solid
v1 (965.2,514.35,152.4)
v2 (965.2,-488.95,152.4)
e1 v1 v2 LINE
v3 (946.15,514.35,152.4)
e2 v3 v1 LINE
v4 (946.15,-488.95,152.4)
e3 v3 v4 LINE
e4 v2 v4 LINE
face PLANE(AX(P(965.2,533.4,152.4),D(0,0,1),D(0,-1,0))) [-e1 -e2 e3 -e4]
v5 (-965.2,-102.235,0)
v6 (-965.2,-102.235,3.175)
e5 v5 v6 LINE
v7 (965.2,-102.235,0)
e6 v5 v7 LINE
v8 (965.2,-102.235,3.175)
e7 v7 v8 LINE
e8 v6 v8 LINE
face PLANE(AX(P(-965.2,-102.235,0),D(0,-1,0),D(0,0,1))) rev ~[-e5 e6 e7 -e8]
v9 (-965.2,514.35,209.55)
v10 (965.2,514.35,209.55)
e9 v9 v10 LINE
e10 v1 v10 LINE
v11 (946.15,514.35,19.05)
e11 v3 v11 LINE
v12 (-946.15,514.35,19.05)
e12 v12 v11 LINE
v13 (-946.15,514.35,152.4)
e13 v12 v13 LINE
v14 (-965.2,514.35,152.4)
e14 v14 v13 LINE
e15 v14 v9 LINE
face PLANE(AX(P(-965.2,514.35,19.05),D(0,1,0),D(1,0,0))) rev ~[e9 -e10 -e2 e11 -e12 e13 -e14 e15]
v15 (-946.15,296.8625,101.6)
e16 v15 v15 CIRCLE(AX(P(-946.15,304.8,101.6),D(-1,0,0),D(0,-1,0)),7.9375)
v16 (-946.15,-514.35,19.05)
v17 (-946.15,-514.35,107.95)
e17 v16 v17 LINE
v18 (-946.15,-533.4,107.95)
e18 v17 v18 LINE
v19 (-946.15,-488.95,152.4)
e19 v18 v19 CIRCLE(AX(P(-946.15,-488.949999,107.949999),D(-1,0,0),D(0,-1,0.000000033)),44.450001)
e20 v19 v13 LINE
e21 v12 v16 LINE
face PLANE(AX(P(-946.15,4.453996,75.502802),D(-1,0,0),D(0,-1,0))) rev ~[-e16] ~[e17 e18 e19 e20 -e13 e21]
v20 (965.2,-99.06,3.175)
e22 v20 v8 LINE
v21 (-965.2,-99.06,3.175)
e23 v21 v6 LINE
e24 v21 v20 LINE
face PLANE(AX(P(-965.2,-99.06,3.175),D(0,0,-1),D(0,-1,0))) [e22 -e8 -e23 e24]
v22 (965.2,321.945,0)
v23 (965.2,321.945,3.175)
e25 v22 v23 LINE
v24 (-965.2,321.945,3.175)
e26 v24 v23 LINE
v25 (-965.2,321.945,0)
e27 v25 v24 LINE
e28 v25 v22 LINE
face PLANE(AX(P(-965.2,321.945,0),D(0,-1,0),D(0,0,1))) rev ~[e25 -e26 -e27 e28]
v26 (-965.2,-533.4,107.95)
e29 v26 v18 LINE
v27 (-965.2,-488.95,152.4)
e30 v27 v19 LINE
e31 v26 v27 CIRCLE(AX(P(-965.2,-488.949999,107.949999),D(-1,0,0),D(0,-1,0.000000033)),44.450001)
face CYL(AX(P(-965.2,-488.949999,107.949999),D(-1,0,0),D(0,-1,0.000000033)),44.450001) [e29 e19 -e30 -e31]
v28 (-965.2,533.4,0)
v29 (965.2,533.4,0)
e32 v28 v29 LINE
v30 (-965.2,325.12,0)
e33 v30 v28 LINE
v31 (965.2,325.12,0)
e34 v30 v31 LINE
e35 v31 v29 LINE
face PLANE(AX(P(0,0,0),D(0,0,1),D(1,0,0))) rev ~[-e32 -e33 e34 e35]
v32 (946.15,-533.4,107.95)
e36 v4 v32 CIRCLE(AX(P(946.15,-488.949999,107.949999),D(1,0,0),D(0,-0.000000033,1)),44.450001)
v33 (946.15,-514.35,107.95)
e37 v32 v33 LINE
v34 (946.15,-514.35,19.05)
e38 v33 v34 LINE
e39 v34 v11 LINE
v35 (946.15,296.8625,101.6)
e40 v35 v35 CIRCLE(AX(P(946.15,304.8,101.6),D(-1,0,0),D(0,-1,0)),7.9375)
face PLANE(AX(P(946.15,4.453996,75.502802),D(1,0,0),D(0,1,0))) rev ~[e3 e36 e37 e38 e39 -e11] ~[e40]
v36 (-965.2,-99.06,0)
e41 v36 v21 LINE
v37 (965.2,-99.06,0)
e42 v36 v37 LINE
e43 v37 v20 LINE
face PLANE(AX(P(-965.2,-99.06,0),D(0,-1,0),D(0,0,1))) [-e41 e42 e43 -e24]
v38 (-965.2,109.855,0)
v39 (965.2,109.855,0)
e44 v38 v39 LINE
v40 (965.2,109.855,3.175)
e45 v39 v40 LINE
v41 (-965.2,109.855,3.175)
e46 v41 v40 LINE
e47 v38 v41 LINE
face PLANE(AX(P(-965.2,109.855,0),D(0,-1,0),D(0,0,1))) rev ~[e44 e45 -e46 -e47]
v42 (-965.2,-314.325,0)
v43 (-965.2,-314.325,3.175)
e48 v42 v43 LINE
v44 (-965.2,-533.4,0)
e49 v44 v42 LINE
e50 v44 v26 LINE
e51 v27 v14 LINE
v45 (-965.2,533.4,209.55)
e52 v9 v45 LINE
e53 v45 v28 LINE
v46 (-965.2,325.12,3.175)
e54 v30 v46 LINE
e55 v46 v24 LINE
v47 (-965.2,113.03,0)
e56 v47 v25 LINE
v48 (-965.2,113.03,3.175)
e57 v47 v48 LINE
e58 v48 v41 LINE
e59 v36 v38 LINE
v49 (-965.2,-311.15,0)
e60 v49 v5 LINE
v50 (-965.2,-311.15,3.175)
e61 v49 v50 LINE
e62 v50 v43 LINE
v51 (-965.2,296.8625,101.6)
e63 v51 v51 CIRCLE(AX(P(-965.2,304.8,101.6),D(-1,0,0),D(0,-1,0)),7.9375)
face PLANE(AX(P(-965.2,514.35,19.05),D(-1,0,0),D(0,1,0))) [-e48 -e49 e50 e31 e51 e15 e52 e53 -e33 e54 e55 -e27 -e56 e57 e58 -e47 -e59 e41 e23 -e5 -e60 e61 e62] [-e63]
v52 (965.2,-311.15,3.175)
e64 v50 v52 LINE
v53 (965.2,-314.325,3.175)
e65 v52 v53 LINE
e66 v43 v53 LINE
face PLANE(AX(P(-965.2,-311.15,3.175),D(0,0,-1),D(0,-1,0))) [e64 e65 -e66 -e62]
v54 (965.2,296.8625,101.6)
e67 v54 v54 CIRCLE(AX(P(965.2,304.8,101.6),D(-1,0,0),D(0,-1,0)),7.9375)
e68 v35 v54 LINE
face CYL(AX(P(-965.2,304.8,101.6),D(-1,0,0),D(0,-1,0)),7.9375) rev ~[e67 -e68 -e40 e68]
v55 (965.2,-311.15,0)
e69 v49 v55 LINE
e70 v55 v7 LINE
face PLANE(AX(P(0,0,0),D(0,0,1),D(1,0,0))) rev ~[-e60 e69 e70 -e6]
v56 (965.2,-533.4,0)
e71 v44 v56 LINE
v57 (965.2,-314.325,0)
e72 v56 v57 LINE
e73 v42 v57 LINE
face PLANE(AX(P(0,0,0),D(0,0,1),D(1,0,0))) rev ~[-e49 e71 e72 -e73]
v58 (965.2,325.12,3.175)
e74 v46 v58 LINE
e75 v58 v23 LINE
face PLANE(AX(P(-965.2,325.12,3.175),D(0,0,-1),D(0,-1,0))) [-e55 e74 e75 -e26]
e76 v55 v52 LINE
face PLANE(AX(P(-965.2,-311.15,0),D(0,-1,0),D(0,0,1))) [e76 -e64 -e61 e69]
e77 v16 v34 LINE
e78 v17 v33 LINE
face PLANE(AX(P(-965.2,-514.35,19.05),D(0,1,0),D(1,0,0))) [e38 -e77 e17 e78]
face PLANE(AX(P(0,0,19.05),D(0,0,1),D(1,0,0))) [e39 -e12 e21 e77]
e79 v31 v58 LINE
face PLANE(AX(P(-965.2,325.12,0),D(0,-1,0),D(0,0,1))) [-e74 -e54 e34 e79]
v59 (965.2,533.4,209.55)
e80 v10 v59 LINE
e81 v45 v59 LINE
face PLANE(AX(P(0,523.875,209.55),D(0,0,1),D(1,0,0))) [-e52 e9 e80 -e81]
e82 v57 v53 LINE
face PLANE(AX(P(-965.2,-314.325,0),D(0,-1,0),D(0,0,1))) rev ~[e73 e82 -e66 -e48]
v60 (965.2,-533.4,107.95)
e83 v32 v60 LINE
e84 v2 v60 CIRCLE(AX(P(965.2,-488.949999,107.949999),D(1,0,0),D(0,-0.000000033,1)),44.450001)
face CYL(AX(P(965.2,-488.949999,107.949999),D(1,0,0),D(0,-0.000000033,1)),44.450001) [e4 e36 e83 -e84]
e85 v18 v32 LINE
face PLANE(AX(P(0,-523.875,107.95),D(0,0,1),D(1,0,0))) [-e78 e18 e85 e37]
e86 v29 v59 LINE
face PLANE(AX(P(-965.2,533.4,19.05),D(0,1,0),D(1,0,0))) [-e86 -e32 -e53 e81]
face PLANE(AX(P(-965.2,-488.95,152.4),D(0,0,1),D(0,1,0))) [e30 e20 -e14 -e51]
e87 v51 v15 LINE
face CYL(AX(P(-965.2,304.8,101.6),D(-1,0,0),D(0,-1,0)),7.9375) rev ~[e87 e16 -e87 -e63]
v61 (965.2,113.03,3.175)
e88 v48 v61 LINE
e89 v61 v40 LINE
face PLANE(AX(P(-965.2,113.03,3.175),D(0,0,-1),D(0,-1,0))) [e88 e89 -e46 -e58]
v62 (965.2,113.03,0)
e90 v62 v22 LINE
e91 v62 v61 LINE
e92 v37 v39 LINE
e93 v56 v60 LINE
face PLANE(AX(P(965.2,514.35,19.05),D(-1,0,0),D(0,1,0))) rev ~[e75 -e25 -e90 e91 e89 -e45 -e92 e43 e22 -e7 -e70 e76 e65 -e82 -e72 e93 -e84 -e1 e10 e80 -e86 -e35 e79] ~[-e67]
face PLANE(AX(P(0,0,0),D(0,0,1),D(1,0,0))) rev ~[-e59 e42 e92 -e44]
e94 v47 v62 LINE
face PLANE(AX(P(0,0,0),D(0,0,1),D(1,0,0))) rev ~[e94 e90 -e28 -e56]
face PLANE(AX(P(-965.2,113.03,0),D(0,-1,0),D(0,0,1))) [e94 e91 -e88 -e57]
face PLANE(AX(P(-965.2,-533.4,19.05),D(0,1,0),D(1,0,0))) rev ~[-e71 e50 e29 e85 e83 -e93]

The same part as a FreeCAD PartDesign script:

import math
import FreeCAD as App
import Part
import Sketcher
Q = App.Units.Quantity

doc = App.newDocument("Part")
params = doc.addObject("Spreadsheet::Sheet", "Params")
for row, (alias, value) in enumerate([
    ("sketch1_width", "76 in"),
    ("sketch1_height", "42 in"),
    ("pad1_length", "0.75 in"),
    ("sketch2_width", "76 in"),
    ("sketch2_height", "0.75 in"),
    ("pad2_length", "3.5 in"),
    ("sketch3_width", "76 in"),
    ("sketch3_height", "0.75 in"),
    ("pad3_length", "7.5 in"),
    ("sketch4_width", "42 in"),
    ("sketch4_height", "6 in"),
    ("sketch4_radius", "1.7500001 in"),
    ("pad4_length", "0.75 in"),
    ("sketch5_width", "42 in"),
    ("sketch5_height", "6 in"),
    ("sketch5_radius", "1.7500001 in"),
    ("pad5_length", "0.75 in"),
    ("sketch6_diameter", "0.625 in"),
    ("sketch7_width", "0.125 in"),
], start=1):
    params.set(f"A{row}", alias)
    params.set(f"B{row}", "=" + value)
    params.setAlias(f"B{row}", alias)

body = doc.addObject("PartDesign::Body", "Body")

# Sketch on XY plane
sketch1 = body.newObject("Sketcher::SketchObject", "Sketch")
sketch1.AttachmentSupport = (doc.getObject("XY_Plane"), [""])
sketch1.MapMode = "FlatFace"
sketch1.addGeometry([
    Part.LineSegment(App.Vector(-965, 533, 0), App.Vector(-965, -533, 0)),
    Part.LineSegment(App.Vector(-965, -533, 0), App.Vector(965, -533, 0)),
    Part.LineSegment(App.Vector(965, -533, 0), App.Vector(965, 533, 0)),
    Part.LineSegment(App.Vector(965, 533, 0), App.Vector(-965, 533, 0)),
], False)
sketch1.addConstraint([
    Sketcher.Constraint("Coincident", 0, 2, 1, 1),
    Sketcher.Constraint("Coincident", 1, 2, 2, 1),
    Sketcher.Constraint("Coincident", 2, 2, 3, 1),
    Sketcher.Constraint("Coincident", 3, 2, 0, 1),
    Sketcher.Constraint("Vertical", 0),
    Sketcher.Constraint("Horizontal", 1),
    Sketcher.Constraint("Vertical", 2),
    Sketcher.Constraint("Horizontal", 3),
    Sketcher.Constraint("Symmetric", 0, 2, 2, 2, -1, 1),
    Sketcher.Constraint("DistanceX", 1, 1, 1, 2, Q("76 in")),
    Sketcher.Constraint("DistanceY", 0, 2, 0, 1, Q("42 in")),
])
sketch1.setExpression("Constraints[9]", "Params.sketch1_width")
sketch1.setExpression("Constraints[10]", "Params.sketch1_height")
pad1 = body.newObject("PartDesign::Pad", "Pad")
pad1.Profile = sketch1
pad1.setExpression("Length", "Params.pad1_length")

# Sketch on XY plane
sketch2 = body.newObject("Sketcher::SketchObject", "Sketch001")
sketch2.AttachmentSupport = (doc.getObject("XY_Plane"), [""])
sketch2.MapMode = "FlatFace"
sketch2.AttachmentOffset = App.Placement(App.Vector(0, 0, 0.75 * 25.4), App.Rotation())
sketch2.addGeometry([
    Part.LineSegment(App.Vector(-965, -514, 0), App.Vector(-965, -533, 0)),
    Part.LineSegment(App.Vector(-965, -533, 0), App.Vector(965, -533, 0)),
    Part.LineSegment(App.Vector(965, -533, 0), App.Vector(965, -514, 0)),
    Part.LineSegment(App.Vector(965, -514, 0), App.Vector(-965, -514, 0)),
], False)
sketch2.addConstraint([
    Sketcher.Constraint("Coincident", 0, 2, 1, 1),
    Sketcher.Constraint("Coincident", 1, 2, 2, 1),
    Sketcher.Constraint("Coincident", 2, 2, 3, 1),
    Sketcher.Constraint("Coincident", 3, 2, 0, 1),
    Sketcher.Constraint("Vertical", 0),
    Sketcher.Constraint("Horizontal", 1),
    Sketcher.Constraint("Vertical", 2),
    Sketcher.Constraint("Horizontal", 3),
    Sketcher.Constraint("DistanceX", 1, 1, 1, 2, Q("76 in")),
    Sketcher.Constraint("DistanceX", 0, 2, -1, 1, Q("38 in")),
    Sketcher.Constraint("DistanceY", 0, 2, -1, 1, Q("21 in")),
    Sketcher.Constraint("DistanceY", 0, 2, 0, 1, Q("0.75 in")),
])
sketch2.setExpression("Constraints[8]", "Params.sketch2_width")
sketch2.setExpression("Constraints[11]", "Params.sketch2_height")
pad2 = body.newObject("PartDesign::Pad", "Pad001")
pad2.Profile = sketch2
pad2.setExpression("Length", "Params.pad2_length")

# Sketch on XY plane
sketch3 = body.newObject("Sketcher::SketchObject", "Sketch002")
sketch3.AttachmentSupport = (doc.getObject("XY_Plane"), [""])
sketch3.MapMode = "FlatFace"
sketch3.AttachmentOffset = App.Placement(App.Vector(0, 0, 0.75 * 25.4), App.Rotation())
sketch3.addGeometry([
    Part.LineSegment(App.Vector(-965, 533, 0), App.Vector(-965, 514, 0)),
    Part.LineSegment(App.Vector(-965, 514, 0), App.Vector(965, 514, 0)),
    Part.LineSegment(App.Vector(965, 514, 0), App.Vector(965, 533, 0)),
    Part.LineSegment(App.Vector(965, 533, 0), App.Vector(-965, 533, 0)),
], False)
sketch3.addConstraint([
    Sketcher.Constraint("Coincident", 0, 2, 1, 1),
    Sketcher.Constraint("Coincident", 1, 2, 2, 1),
    Sketcher.Constraint("Coincident", 2, 2, 3, 1),
    Sketcher.Constraint("Coincident", 3, 2, 0, 1),
    Sketcher.Constraint("Vertical", 0),
    Sketcher.Constraint("Horizontal", 1),
    Sketcher.Constraint("Vertical", 2),
    Sketcher.Constraint("Horizontal", 3),
    Sketcher.Constraint("DistanceX", 1, 1, 1, 2, Q("76 in")),
    Sketcher.Constraint("DistanceX", 0, 2, -1, 1, Q("38 in")),
    Sketcher.Constraint("DistanceY", -1, 1, 2, 2, Q("21 in")),
    Sketcher.Constraint("DistanceY", 0, 2, 0, 1, Q("0.75 in")),
])
sketch3.setExpression("Constraints[8]", "Params.sketch3_width")
sketch3.setExpression("Constraints[11]", "Params.sketch3_height")
pad3 = body.newObject("PartDesign::Pad", "Pad002")
pad3.Profile = sketch3
pad3.setExpression("Length", "Params.pad3_length")

# Sketch on YZ plane
sketch4 = body.newObject("Sketcher::SketchObject", "Sketch003")
sketch4.AttachmentSupport = (doc.getObject("YZ_Plane"), [""])
sketch4.MapMode = "FlatFace"
sketch4.AttachmentOffset = App.Placement(App.Vector(0, 0, -38 * 25.4), App.Rotation())
sketch4.addGeometry([
    Part.LineSegment(App.Vector(533, 0, 0), App.Vector(-533, 0, 0)),  # 0
    Part.LineSegment(App.Vector(-533, 0, 0), App.Vector(-533, 108, 0)),  # 1
    Part.ArcOfCircle(Part.Circle(App.Vector(-489, 108, 0), App.Vector(0, 0, 1), 44), math.radians(90), math.radians(180)),  # 2
    Part.LineSegment(App.Vector(-489, 152, 0), App.Vector(533, 152, 0)),  # 3
    Part.LineSegment(App.Vector(533, 152, 0), App.Vector(533, 0, 0)),  # 4
], False)
sketch4.addConstraint([
    Sketcher.Constraint("Coincident", 0, 2, 1, 1),
    Sketcher.Constraint("Tangent", 1, 2, 2, 2),
    Sketcher.Constraint("Tangent", 2, 1, 3, 1),
    Sketcher.Constraint("Coincident", 3, 2, 4, 1),
    Sketcher.Constraint("Coincident", 4, 2, 0, 1),
    Sketcher.Constraint("Horizontal", 0),
    Sketcher.Constraint("Vertical", 1),
    Sketcher.Constraint("Horizontal", 3),
    Sketcher.Constraint("Vertical", 4),
    Sketcher.Constraint("Symmetric", 0, 2, 4, 2, -1, 1),
    Sketcher.Constraint("DistanceX", 0, 2, 0, 1, Q("42 in")),
    Sketcher.Constraint("DistanceY", 4, 2, 4, 1, Q("6 in")),
    Sketcher.Constraint("Radius", 2, Q("1.7500001 in")),
])
sketch4.setExpression("Constraints[10]", "Params.sketch4_width")
sketch4.setExpression("Constraints[11]", "Params.sketch4_height")
sketch4.setExpression("Constraints[12]", "Params.sketch4_radius")
pad4 = body.newObject("PartDesign::Pad", "Pad003")
pad4.Profile = sketch4
pad4.setExpression("Length", "Params.pad4_length")

# Sketch on YZ plane
sketch5 = body.newObject("Sketcher::SketchObject", "Sketch004")
sketch5.AttachmentSupport = (doc.getObject("YZ_Plane"), [""])
sketch5.MapMode = "FlatFace"
sketch5.AttachmentOffset = App.Placement(App.Vector(0, 0, 38 * 25.4), App.Rotation())
sketch5.addGeometry([
    Part.LineSegment(App.Vector(-533, 108, 0), App.Vector(-533, 0, 0)),  # 0
    Part.LineSegment(App.Vector(-533, 0, 0), App.Vector(533, 0, 0)),  # 1
    Part.LineSegment(App.Vector(533, 0, 0), App.Vector(533, 152, 0)),  # 2
    Part.LineSegment(App.Vector(533, 152, 0), App.Vector(-489, 152, 0)),  # 3
    Part.ArcOfCircle(Part.Circle(App.Vector(-489, 108, 0), App.Vector(0, 0, 1), 44), math.radians(90), math.radians(180)),  # 4
], False)
sketch5.addConstraint([
    Sketcher.Constraint("Coincident", 0, 2, 1, 1),
    Sketcher.Constraint("Coincident", 1, 2, 2, 1),
    Sketcher.Constraint("Coincident", 2, 2, 3, 1),
    Sketcher.Constraint("Tangent", 3, 2, 4, 1),
    Sketcher.Constraint("Tangent", 4, 2, 0, 1),
    Sketcher.Constraint("Vertical", 0),
    Sketcher.Constraint("Horizontal", 1),
    Sketcher.Constraint("Vertical", 2),
    Sketcher.Constraint("Horizontal", 3),
    Sketcher.Constraint("Symmetric", 0, 2, 1, 2, -1, 1),
    Sketcher.Constraint("DistanceX", 1, 1, 1, 2, Q("42 in")),
    Sketcher.Constraint("DistanceY", 2, 1, 2, 2, Q("6 in")),
    Sketcher.Constraint("Radius", 4, Q("1.7500001 in")),
])
sketch5.setExpression("Constraints[10]", "Params.sketch5_width")
sketch5.setExpression("Constraints[11]", "Params.sketch5_height")
sketch5.setExpression("Constraints[12]", "Params.sketch5_radius")
pad5 = body.newObject("PartDesign::Pad", "Pad004")
pad5.Profile = sketch5
pad5.setExpression("Length", "Params.pad5_length")
pad5.Reversed = True

# Sketch on YZ plane
sketch6 = body.newObject("Sketcher::SketchObject", "Sketch005")
sketch6.AttachmentSupport = (doc.getObject("YZ_Plane"), [""])
sketch6.MapMode = "FlatFace"
sketch6.AttachmentOffset = App.Placement(App.Vector(0, 0, -38 * 25.4), App.Rotation())
sketch6.addGeometry(Part.Circle(App.Vector(305, 102, 0), App.Vector(0, 0, 1), 8), False)
sketch6.addConstraint([
    Sketcher.Constraint("Diameter", 0, Q("0.625 in")),
    Sketcher.Constraint("DistanceX", -1, 1, 0, 3, Q("12 in")),
    Sketcher.Constraint("DistanceY", -1, 1, 0, 3, Q("4 in")),
])
sketch6.setExpression("Constraints[0]", "Params.sketch6_diameter")
pocket1 = body.newObject("PartDesign::Pocket", "Pocket")
pocket1.Profile = sketch6
pocket1.Type = "ThroughAll"
pocket1.Reversed = True

# Sketch on YZ plane
sketch7 = body.newObject("Sketcher::SketchObject", "Sketch006")
sketch7.AttachmentSupport = (doc.getObject("YZ_Plane"), [""])
sketch7.MapMode = "FlatFace"
sketch7.AttachmentOffset = App.Placement(App.Vector(0, 0, -38 * 25.4), App.Rotation())
sketch7.addGeometry([
    Part.LineSegment(App.Vector(325.1, 3.2, 0), App.Vector(325.1, 0, 0)),  # 0
    Part.LineSegment(App.Vector(325.1, 0, 0), App.Vector(321.9, 0, 0)),  # 1
    Part.LineSegment(App.Vector(321.9, 0, 0), App.Vector(321.9, 3.2, 0)),  # 2
    Part.LineSegment(App.Vector(321.9, 3.2, 0), App.Vector(325.1, 3.2, 0)),  # 3
    Part.LineSegment(App.Vector(113, 3.2, 0), App.Vector(113, 0, 0)),  # 4
    Part.LineSegment(App.Vector(113, 0, 0), App.Vector(109.9, 0, 0)),  # 5
    Part.LineSegment(App.Vector(109.9, 0, 0), App.Vector(109.9, 3.2, 0)),  # 6
    Part.LineSegment(App.Vector(109.9, 3.2, 0), App.Vector(113, 3.2, 0)),  # 7
    Part.LineSegment(App.Vector(-99.1, 3.2, 0), App.Vector(-99.1, 0, 0)),  # 8
    Part.LineSegment(App.Vector(-99.1, 0, 0), App.Vector(-102.2, 0, 0)),  # 9
    Part.LineSegment(App.Vector(-102.2, 0, 0), App.Vector(-102.2, 3.2, 0)),  # 10
    Part.LineSegment(App.Vector(-102.2, 3.2, 0), App.Vector(-99.1, 3.2, 0)),  # 11
    Part.LineSegment(App.Vector(-311.1, 3.2, 0), App.Vector(-311.1, 0, 0)),  # 12
    Part.LineSegment(App.Vector(-311.1, 0, 0), App.Vector(-314.3, 0, 0)),  # 13
    Part.LineSegment(App.Vector(-314.3, 0, 0), App.Vector(-314.3, 3.2, 0)),  # 14
    Part.LineSegment(App.Vector(-314.3, 3.2, 0), App.Vector(-311.1, 3.2, 0)),  # 15
], False)
sketch7.addConstraint([
    Sketcher.Constraint("Coincident", 0, 2, 1, 1),
    Sketcher.Constraint("Coincident", 1, 2, 2, 1),
    Sketcher.Constraint("Coincident", 2, 2, 3, 1),
    Sketcher.Constraint("Coincident", 3, 2, 0, 1),
    Sketcher.Constraint("Coincident", 4, 2, 5, 1),
    Sketcher.Constraint("Coincident", 5, 2, 6, 1),
    Sketcher.Constraint("Coincident", 6, 2, 7, 1),
    Sketcher.Constraint("Coincident", 7, 2, 4, 1),
    Sketcher.Constraint("Coincident", 8, 2, 9, 1),
    Sketcher.Constraint("Coincident", 9, 2, 10, 1),
    Sketcher.Constraint("Coincident", 10, 2, 11, 1),
    Sketcher.Constraint("Coincident", 11, 2, 8, 1),
    Sketcher.Constraint("Coincident", 12, 2, 13, 1),
    Sketcher.Constraint("Coincident", 13, 2, 14, 1),
    Sketcher.Constraint("Coincident", 14, 2, 15, 1),
    Sketcher.Constraint("Coincident", 15, 2, 12, 1),
    Sketcher.Constraint("Vertical", 0),
    Sketcher.Constraint("Horizontal", 1),
    Sketcher.Constraint("Vertical", 2),
    Sketcher.Constraint("Horizontal", 3),
    Sketcher.Constraint("Vertical", 4),
    Sketcher.Constraint("Horizontal", 5),
    Sketcher.Constraint("Vertical", 6),
    Sketcher.Constraint("Horizontal", 7),
    Sketcher.Constraint("Vertical", 8),
    Sketcher.Constraint("Horizontal", 9),
    Sketcher.Constraint("Vertical", 10),
    Sketcher.Constraint("Horizontal", 11),
    Sketcher.Constraint("Vertical", 12),
    Sketcher.Constraint("Horizontal", 13),
    Sketcher.Constraint("Vertical", 14),
    Sketcher.Constraint("Horizontal", 15),
    Sketcher.Constraint("PointOnObject", 0, 2, -1),
    Sketcher.Constraint("PointOnObject", 4, 2, -1),
    Sketcher.Constraint("PointOnObject", 8, 2, -1),
    Sketcher.Constraint("PointOnObject", 12, 2, -1),
    Sketcher.Constraint("Horizontal", 3, 2, 6, 2),
    Sketcher.Constraint("Horizontal", 7, 2, 10, 2),
    Sketcher.Constraint("Horizontal", 11, 2, 14, 2),
    Sketcher.Constraint("Equal", 3, 5),
    Sketcher.Constraint("Equal", 7, 9),
    Sketcher.Constraint("Equal", 11, 13),
    Sketcher.Constraint("Equal", 15, 0),
    Sketcher.Constraint("DistanceX", -1, 1, 0, 2, Q("12.8 in")),
    Sketcher.Constraint("DistanceX", 8, 2, -1, 1, Q("3.9 in")),
    Sketcher.Constraint("DistanceX", 1, 2, 1, 1, Q("0.125 in")),
    Sketcher.Constraint("DistanceX", -1, 1, 4, 2, Q("4.45 in")),
    Sketcher.Constraint("DistanceX", 12, 2, -1, 1, Q("12.25 in")),
])
sketch7.setExpression("Constraints[45]", "Params.sketch7_width")
pocket2 = body.newObject("PartDesign::Pocket", "Pocket001")
pocket2.Profile = sketch7
pocket2.Type = "ThroughAll"
pocket2.Reversed = True

doc.recompute()
